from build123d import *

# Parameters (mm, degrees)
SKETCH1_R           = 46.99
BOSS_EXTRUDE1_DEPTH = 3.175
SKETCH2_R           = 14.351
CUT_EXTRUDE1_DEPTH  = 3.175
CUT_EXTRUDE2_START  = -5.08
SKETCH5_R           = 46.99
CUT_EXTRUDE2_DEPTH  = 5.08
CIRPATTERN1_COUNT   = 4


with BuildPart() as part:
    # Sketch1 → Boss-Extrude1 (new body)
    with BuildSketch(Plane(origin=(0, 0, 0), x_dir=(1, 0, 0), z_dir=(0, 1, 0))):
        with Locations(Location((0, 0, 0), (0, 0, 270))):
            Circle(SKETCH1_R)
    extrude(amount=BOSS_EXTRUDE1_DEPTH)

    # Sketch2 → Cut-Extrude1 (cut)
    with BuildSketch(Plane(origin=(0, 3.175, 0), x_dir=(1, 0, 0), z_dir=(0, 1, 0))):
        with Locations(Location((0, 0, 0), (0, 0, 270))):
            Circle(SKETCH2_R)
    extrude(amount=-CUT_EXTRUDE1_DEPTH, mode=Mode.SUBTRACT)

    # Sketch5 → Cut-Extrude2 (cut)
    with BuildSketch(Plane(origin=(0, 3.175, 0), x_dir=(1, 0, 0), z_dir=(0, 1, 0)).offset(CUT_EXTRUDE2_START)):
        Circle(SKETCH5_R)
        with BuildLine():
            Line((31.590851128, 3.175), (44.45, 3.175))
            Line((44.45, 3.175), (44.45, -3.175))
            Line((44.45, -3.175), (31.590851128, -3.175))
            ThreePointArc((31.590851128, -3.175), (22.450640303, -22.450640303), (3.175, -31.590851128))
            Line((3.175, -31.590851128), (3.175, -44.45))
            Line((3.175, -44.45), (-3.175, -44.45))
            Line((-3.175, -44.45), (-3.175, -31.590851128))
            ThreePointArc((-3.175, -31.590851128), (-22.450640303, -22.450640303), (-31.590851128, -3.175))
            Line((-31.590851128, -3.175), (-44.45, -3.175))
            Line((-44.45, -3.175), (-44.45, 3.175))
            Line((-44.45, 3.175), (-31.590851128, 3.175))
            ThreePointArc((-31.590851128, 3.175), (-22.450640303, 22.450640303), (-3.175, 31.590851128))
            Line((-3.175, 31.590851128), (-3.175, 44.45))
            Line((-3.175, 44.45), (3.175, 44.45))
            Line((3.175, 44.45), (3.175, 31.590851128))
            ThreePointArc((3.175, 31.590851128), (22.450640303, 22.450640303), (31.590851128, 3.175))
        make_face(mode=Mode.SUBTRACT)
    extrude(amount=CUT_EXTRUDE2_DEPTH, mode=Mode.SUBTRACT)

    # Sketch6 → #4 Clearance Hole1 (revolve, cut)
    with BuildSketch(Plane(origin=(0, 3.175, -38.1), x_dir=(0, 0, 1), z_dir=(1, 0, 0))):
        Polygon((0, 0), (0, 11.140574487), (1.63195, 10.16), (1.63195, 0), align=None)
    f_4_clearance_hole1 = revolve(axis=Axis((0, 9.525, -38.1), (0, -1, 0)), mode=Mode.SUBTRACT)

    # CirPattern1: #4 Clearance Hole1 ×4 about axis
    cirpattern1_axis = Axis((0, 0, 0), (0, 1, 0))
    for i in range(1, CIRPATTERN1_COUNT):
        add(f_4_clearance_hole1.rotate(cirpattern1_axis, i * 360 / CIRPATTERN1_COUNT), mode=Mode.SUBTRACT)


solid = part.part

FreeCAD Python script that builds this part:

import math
import FreeCAD as App
import Part
import Sketcher
Q = App.Units.Quantity

doc = App.newDocument("Part")
params = doc.addObject("Spreadsheet::Sheet", "Params")
for row, (alias, value) in enumerate([
    ("sketch1_diameter", "3.7 in"),
    ("pad1_length", "0.125 in"),
    ("sketch2_diameter", "1.13 in"),
    ("pocket1_length", "0.125 in"),
    ("sketch3_diameter", "3.7 in"),
    ("sketch3_radius", "1.25 in"),
    ("sketch3_width", "0.25 in"),
    ("pocket2_length", "0.2 in"),
    ("sketch4_width", "0.4 in"),
    ("groove_angle", "360 deg"),
], start=1):
    params.set(f"A{row}", alias)
    params.set(f"B{row}", "=" + value)
    params.setAlias(f"B{row}", alias)

body = doc.addObject("PartDesign::Body", "Body")

sketch1 = body.newObject("Sketcher::SketchObject", "Sketch")
sketch1.AttachmentSupport = (doc.getObject("XZ_Plane"), [""])
sketch1.MapMode = "FlatFace"
sketch1.addGeometry(Part.Circle(App.Vector(0, 0, 0), App.Vector(0, 0, 1), 47), False)
sketch1.addConstraint(Sketcher.Constraint("Coincident", 0, 3, -1, 1))
sketch1.addConstraint(Sketcher.Constraint("Diameter", 0, Q("3.7 in")))
sketch1.setExpression("Constraints[1]", "Params.sketch1_diameter")
pad1 = body.newObject("PartDesign::Pad", "Pad")
pad1.Profile = sketch1
pad1.setExpression("Length", "Params.pad1_length")
pad1.Reversed = True

sketch2 = body.newObject("Sketcher::SketchObject", "Sketch001")
sketch2.AttachmentSupport = (doc.getObject("XZ_Plane"), [""])
sketch2.MapMode = "FlatFace"
sketch2.AttachmentOffset = App.Placement(App.Vector(0, 0, -0.125 * 25.4), App.Rotation())
sketch2.addGeometry(Part.Circle(App.Vector(0, 0, 0), App.Vector(0, 0, 1), 14), False)
sketch2.addConstraint(Sketcher.Constraint("Coincident", 0, 3, -1, 1))
sketch2.addConstraint(Sketcher.Constraint("Diameter", 0, Q("1.13 in")))
sketch2.setExpression("Constraints[1]", "Params.sketch2_diameter")
pocket1 = body.newObject("PartDesign::Pocket", "Pocket")
pocket1.Profile = sketch2
pocket1.setExpression("Length", "Params.pocket1_length")
pocket1.Reversed = True

sketch3 = body.newObject("Sketcher::SketchObject", "Sketch002")
sketch3.AttachmentSupport = (doc.getObject("XZ_Plane"), [""])
sketch3.MapMode = "FlatFace"
sketch3.AttachmentOffset = App.Placement(App.Vector(0, 0, 0.075 * 25.4), App.Rotation())
sketch3.addGeometry(Part.Circle(App.Vector(0, 0, 0), App.Vector(0, 0, 1), 47), False)
sketch3.addGeometry(Part.ArcOfCircle(Part.Circle(App.Vector(0, 0, 0), App.Vector(0, 0, 1), 32), math.radians(-84), math.radians(-6)), False)
sketch3.addGeometry(Part.LineSegment(App.Vector(32, -3, 0), App.Vector(44, -3, 0)), False)
sketch3.addGeometry(Part.LineSegment(App.Vector(44, -3, 0), App.Vector(44, 3, 0)), False)
sketch3.addGeometry(Part.LineSegment(App.Vector(44, 3, 0), App.Vector(32, 3, 0)), False)
sketch3.addGeometry(Part.ArcOfCircle(Part.Circle(App.Vector(0, 0, 0), App.Vector(0, 0, 1), 32), math.radians(6), math.radians(84)), False)
sketch3.addGeometry(Part.LineSegment(App.Vector(3, 32, 0), App.Vector(3, 44, 0)), False)
sketch3.addGeometry(Part.LineSegment(App.Vector(3, 44, 0), App.Vector(-3, 44, 0)), False)
sketch3.addGeometry(Part.LineSegment(App.Vector(-3, 44, 0), App.Vector(-3, 32, 0)), False)
sketch3.addGeometry(Part.ArcOfCircle(Part.Circle(App.Vector(0, 0, 0), App.Vector(0, 0, 1), 32), math.radians(96), math.radians(174)), False)
sketch3.addGeometry(Part.LineSegment(App.Vector(-32, 3, 0), App.Vector(-44, 3, 0)), False)
sketch3.addGeometry(Part.LineSegment(App.Vector(-44, 3, 0), App.Vector(-44, -3, 0)), False)
sketch3.addGeometry(Part.LineSegment(App.Vector(-44, -3, 0), App.Vector(-32, -3, 0)), False)
sketch3.addGeometry(Part.ArcOfCircle(Part.Circle(App.Vector(0, 0, 0), App.Vector(0, 0, 1), 32), math.radians(-174), math.radians(-96)), False)
sketch3.addGeometry(Part.LineSegment(App.Vector(-3, -32, 0), App.Vector(-3, -44, 0)), False)
sketch3.addGeometry(Part.LineSegment(App.Vector(-3, -44, 0), App.Vector(3, -44, 0)), False)
sketch3.addGeometry(Part.LineSegment(App.Vector(3, -44, 0), App.Vector(3, -32, 0)), False)
sketch3.addConstraint(Sketcher.Constraint("Coincident", 1, 2, 2, 1))
sketch3.addConstraint(Sketcher.Constraint("Coincident", 2, 2, 3, 1))
sketch3.addConstraint(Sketcher.Constraint("Coincident", 3, 2, 4, 1))
sketch3.addConstraint(Sketcher.Constraint("Coincident", 4, 2, 5, 1))
sketch3.addConstraint(Sketcher.Constraint("Coincident", 5, 2, 6, 1))
sketch3.addConstraint(Sketcher.Constraint("Coincident", 6, 2, 7, 1))
sketch3.addConstraint(Sketcher.Constraint("Coincident", 7, 2, 8, 1))
sketch3.addConstraint(Sketcher.Constraint("Coincident", 8, 2, 9, 1))
sketch3.addConstraint(Sketcher.Constraint("Coincident", 9, 2, 10, 1))
sketch3.addConstraint(Sketcher.Constraint("Coincident", 10, 2, 11, 1))
sketch3.addConstraint(Sketcher.Constraint("Coincident", 11, 2, 12, 1))
sketch3.addConstraint(Sketcher.Constraint("Coincident", 12, 2, 13, 1))
sketch3.addConstraint(Sketcher.Constraint("Coincident", 13, 2, 14, 1))
sketch3.addConstraint(Sketcher.Constraint("Coincident", 14, 2, 15, 1))
sketch3.addConstraint(Sketcher.Constraint("Coincident", 15, 2, 16, 1))
sketch3.addConstraint(Sketcher.Constraint("Coincident", 16, 2, 1, 1))
sketch3.addConstraint(Sketcher.Constraint("Horizontal", 2))
sketch3.addConstraint(Sketcher.Constraint("Vertical", 3))
sketch3.addConstraint(Sketcher.Constraint("Horizontal", 4))
sketch3.addConstraint(Sketcher.Constraint("Vertical", 6))
sketch3.addConstraint(Sketcher.Constraint("Horizontal", 7))
sketch3.addConstraint(Sketcher.Constraint("Vertical", 8))
sketch3.addConstraint(Sketcher.Constraint("Horizontal", 10))
sketch3.addConstraint(Sketcher.Constraint("Vertical", 11))
sketch3.addConstraint(Sketcher.Constraint("Horizontal", 12))
sketch3.addConstraint(Sketcher.Constraint("Vertical", 14))
sketch3.addConstraint(Sketcher.Constraint("Horizontal", 15))
sketch3.addConstraint(Sketcher.Constraint("Vertical", 16))
sketch3.addConstraint(Sketcher.Constraint("Coincident", 0, 3, -1, 1))
sketch3.addConstraint(Sketcher.Constraint("Coincident", 1, 3, -1, 1))
sketch3.addConstraint(Sketcher.Constraint("Coincident", 5, 3, -1, 1))
sketch3.addConstraint(Sketcher.Constraint("Coincident", 9, 3, -1, 1))
sketch3.addConstraint(Sketcher.Constraint("Coincident", 13, 3, -1, 1))
sketch3.addConstraint(Sketcher.Constraint("Equal", 1, 5))
sketch3.addConstraint(Sketcher.Constraint("Equal", 5, 9))
sketch3.addConstraint(Sketcher.Constraint("Equal", 9, 13))
sketch3.addConstraint(Sketcher.Constraint("Symmetric", 2, 2, 10, 2, -1, 1))
sketch3.addConstraint(Sketcher.Constraint("Symmetric", 6, 2, 14, 2, -1, 1))
sketch3.addConstraint(Sketcher.Constraint("Horizontal", 5, 2, 8, 2))
sketch3.addConstraint(Sketcher.Constraint("Horizontal", 4, 2, 9, 2))
sketch3.addConstraint(Sketcher.Constraint("Horizontal", 2, 2, 11, 2))
sketch3.addConstraint(Sketcher.Constraint("Horizontal", 13, 2, 16, 2))
sketch3.addConstraint(Sketcher.Constraint("Equal", 15, 3))
sketch3.addConstraint(Sketcher.Constraint("Equal", 12, 6))
sketch3.addConstraint(Sketcher.Constraint("Diameter", 0, Q("3.7 in")))
sketch3.addConstraint(Sketcher.Constraint("Radius", 1, Q("1.25 in")))
sketch3.addConstraint(Sketcher.Constraint("DistanceX", 7, 2, 7, 1, Q("0.25 in")))
sketch3.addConstraint(Sketcher.Constraint("DistanceX", -1, 1, 2, 2, Q("1.75 in")))
sketch3.setExpression("Constraints[44]", "Params.sketch3_diameter")
sketch3.setExpression("Constraints[45]", "Params.sketch3_radius")
sketch3.setExpression("Constraints[46]", "Params.sketch3_width")
pocket2 = body.newObject("PartDesign::Pocket", "Pocket001")
pocket2.Profile = sketch3
pocket2.setExpression("Length", "Params.pocket2_length")

sketch4 = body.newObject("Sketcher::SketchObject", "Sketch003")
sketch4.AttachmentSupport = (doc.getObject("YZ_Plane"), [""])
sketch4.MapMode = "FlatFace"
sketch4.addGeometry(Part.LineSegment(App.Vector(-8, -38.1, 0), App.Vector(3.2, -38.1, 0)), False)
sketch4.addGeometry(Part.LineSegment(App.Vector(3.2, -38.1, 0), App.Vector(3.2, -36.5, 0)), False)
sketch4.addGeometry(Part.LineSegment(App.Vector(3.2, -36.5, 0), App.Vector(-7, -36.5, 0)), False)
sketch4.addGeometry(Part.LineSegment(App.Vector(-7, -36.5, 0), App.Vector(-8, -38.1, 0)), False)
sketch4.addGeometry(Part.LineSegment(App.Vector(3.2, -38.1, 0), App.Vector(-8, -38.1, 0)), True)
sketch4.addConstraint(Sketcher.Constraint("Coincident", 0, 2, 1, 1))
sketch4.addConstraint(Sketcher.Constraint("Coincident", 1, 2, 2, 1))
sketch4.addConstraint(Sketcher.Constraint("Coincident", 2, 2, 3, 1))
sketch4.addConstraint(Sketcher.Constraint("Coincident", 3, 2, 0, 1))
sketch4.addConstraint(Sketcher.Constraint("Horizontal", 0))
sketch4.addConstraint(Sketcher.Constraint("Vertical", 1))
sketch4.addConstraint(Sketcher.Constraint("Horizontal", 2))
sketch4.addConstraint(Sketcher.Constraint("Horizontal", 4))
sketch4.addConstraint(Sketcher.Constraint("Coincident", 4, 1, 0, 2))
sketch4.addConstraint(Sketcher.Constraint("Equal", 0, 4))
sketch4.addConstraint(Sketcher.Constraint("DistanceX", 2, 2, 2, 1, Q("0.4 in")))
sketch4.addConstraint(Sketcher.Constraint("Angle", 3, Q("-121 deg")))
sketch4.addConstraint(Sketcher.Constraint("DistanceY", 0, 2, -1, 1, Q("1.5 in")))
sketch4.addConstraint(Sketcher.Constraint("DistanceX", -1, 1, 0, 2, Q("0.125 in")))
sketch4.addConstraint(Sketcher.Constraint("DistanceY", 1, 1, 1, 2, Q("1.63195 mm")))
sketch4.setExpression("Constraints[10]", "Params.sketch4_width")
groove = body.newObject("PartDesign::Groove", "Groove")
groove.Profile = sketch4
groove.ReferenceAxis = (sketch4, ["Axis0"])
groove.setExpression("Angle", "Params.groove_angle")
doc.recompute()

polarpattern = body.newObject("PartDesign::PolarPattern", "PolarPattern")
polarpattern.Originals = [groove]
polarpattern.Axis = (doc.getObject("Y_Axis"), [""])
polarpattern.Angle = 360
polarpattern.Occurrences = 4
body.Tip = polarpattern

doc.recompute()
